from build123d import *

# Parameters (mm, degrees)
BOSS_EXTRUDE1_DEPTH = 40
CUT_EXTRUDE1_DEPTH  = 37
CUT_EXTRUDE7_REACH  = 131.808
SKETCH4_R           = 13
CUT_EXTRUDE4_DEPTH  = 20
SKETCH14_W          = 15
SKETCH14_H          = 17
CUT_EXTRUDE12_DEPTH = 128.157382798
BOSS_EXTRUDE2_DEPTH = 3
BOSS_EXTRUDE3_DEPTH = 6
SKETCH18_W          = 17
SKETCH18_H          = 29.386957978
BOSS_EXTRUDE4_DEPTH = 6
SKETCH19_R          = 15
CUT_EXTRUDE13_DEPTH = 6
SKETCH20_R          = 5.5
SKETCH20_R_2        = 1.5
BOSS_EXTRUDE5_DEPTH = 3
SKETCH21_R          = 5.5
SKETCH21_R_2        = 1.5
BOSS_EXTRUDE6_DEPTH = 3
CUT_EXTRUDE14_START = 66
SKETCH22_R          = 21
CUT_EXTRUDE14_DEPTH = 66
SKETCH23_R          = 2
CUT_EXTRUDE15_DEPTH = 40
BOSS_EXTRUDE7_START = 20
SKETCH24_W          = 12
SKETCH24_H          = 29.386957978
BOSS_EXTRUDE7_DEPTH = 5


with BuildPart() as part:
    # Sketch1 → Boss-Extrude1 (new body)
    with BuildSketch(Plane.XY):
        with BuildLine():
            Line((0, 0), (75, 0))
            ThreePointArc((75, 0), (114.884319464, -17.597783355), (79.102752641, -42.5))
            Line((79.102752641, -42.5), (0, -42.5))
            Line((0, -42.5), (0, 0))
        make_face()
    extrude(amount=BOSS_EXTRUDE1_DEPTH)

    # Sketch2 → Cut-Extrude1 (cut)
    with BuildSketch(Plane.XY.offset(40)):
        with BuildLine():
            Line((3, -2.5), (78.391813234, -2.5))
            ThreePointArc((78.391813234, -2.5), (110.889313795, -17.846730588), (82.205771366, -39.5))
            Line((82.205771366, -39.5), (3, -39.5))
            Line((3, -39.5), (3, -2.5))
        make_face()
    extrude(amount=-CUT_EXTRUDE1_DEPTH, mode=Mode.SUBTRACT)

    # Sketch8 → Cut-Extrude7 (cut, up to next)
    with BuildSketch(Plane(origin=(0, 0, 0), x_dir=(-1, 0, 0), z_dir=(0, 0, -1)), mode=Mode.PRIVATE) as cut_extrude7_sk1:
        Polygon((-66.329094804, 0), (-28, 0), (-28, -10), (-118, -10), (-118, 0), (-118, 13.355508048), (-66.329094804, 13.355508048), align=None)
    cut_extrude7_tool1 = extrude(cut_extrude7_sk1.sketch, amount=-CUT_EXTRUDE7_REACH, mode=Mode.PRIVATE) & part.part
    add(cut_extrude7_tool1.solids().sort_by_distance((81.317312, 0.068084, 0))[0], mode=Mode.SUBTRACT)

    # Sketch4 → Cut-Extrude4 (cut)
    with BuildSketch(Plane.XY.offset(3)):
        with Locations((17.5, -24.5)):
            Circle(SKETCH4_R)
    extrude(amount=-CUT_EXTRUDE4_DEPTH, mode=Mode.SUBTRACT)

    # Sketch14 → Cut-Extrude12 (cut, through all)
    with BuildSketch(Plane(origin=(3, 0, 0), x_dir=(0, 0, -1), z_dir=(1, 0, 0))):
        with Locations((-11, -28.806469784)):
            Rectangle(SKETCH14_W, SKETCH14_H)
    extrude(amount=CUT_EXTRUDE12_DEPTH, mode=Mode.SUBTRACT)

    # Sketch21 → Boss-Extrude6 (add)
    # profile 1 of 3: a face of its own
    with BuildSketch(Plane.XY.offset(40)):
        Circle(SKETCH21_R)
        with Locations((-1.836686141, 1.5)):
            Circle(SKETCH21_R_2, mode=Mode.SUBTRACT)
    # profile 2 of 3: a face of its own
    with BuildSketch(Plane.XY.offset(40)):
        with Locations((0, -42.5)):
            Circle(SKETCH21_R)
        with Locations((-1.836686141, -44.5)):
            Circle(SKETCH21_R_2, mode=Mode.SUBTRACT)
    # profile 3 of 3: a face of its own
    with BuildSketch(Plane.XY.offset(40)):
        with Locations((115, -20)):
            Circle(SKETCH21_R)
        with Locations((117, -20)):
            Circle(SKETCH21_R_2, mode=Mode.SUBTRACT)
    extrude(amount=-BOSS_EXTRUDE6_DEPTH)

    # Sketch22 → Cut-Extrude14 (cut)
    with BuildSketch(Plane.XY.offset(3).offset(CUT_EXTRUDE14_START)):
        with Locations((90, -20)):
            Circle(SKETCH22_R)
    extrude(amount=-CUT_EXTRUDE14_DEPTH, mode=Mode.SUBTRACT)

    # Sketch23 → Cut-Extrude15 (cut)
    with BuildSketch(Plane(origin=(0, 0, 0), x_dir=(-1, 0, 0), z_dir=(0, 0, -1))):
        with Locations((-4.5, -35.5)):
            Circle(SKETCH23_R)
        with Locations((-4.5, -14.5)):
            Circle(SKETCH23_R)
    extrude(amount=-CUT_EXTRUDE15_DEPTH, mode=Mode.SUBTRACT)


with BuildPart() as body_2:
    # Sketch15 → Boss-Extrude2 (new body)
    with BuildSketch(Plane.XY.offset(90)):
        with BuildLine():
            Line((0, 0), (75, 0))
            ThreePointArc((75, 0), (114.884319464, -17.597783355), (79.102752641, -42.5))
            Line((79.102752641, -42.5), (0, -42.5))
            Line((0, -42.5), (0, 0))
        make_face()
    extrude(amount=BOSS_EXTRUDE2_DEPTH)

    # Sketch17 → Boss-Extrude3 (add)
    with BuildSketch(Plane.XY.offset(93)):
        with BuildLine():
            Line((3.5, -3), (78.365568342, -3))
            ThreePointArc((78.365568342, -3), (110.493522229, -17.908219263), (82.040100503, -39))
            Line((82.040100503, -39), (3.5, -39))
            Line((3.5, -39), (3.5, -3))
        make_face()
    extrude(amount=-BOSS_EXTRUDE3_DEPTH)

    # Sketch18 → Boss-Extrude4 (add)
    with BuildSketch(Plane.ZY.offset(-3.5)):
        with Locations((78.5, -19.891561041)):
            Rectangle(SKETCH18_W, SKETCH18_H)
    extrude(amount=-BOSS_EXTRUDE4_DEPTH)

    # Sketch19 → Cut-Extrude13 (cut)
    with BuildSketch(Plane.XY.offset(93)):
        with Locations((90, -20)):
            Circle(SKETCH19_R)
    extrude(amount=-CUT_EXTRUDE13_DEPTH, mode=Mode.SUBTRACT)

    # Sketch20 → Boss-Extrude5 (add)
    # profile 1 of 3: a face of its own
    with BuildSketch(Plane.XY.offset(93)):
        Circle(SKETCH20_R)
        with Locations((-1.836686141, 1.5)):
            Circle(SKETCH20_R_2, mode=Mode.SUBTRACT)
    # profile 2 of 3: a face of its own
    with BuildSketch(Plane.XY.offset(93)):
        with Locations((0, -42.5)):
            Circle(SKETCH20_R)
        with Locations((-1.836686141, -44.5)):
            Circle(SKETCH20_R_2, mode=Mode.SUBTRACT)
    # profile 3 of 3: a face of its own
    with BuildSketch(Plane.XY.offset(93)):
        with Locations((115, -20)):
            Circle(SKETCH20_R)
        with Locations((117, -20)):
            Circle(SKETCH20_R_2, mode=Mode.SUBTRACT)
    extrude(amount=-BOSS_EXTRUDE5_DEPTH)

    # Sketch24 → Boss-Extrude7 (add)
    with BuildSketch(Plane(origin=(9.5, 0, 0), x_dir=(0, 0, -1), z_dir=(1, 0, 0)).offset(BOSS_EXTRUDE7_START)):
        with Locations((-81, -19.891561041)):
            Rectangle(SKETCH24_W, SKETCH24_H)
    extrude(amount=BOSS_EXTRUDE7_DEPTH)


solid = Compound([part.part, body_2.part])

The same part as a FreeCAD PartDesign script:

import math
import FreeCAD as App
import Part
import Sketcher


def add_polygon(sketch, points):
    """Adds a closed chain of lines whose ends are joined by coincident constraints."""
    first, n = sketch.GeometryCount, len(points)
    for a, b in zip(points, points[1:] + points[:1]):
        sketch.addGeometry(Part.LineSegment(App.Vector(*a, 0), App.Vector(*b, 0)), False)
    for i in range(n):
        sketch.addConstraint(Sketcher.Constraint("Coincident", first + i, 2, first + (i + 1) % n, 1))

doc = App.newDocument("Part")
body = doc.addObject("PartDesign::Body", "Body")

# Sketch on XY plane
sketch1 = doc.addObject("Sketcher::SketchObject", "Sketch")
body.addObject(sketch1)
sketch1.AttachmentSupport = (doc.XY_Plane, [""])
sketch1.MapMode = "FlatFace"
sketch1.addGeometry([
    Part.LineSegment(App.Vector(75, 0, 0), App.Vector(0, 0, 0)),
    Part.LineSegment(App.Vector(0, 0, 0), App.Vector(0, -42, 0)),
    Part.LineSegment(App.Vector(0, -42, 0), App.Vector(79, -42, 0)),
    Part.ArcOfCircle(Part.Circle(App.Vector(90, -20, 0), App.Vector(0, 0, 1), 25), math.radians(-116), math.radians(127)),
], False)
sketch1.addConstraint([
    Sketcher.Constraint("Coincident", 0, 2, 1, 1),
    Sketcher.Constraint("Coincident", 1, 2, 2, 1),
    Sketcher.Constraint("Coincident", 2, 2, 3, 1),
    Sketcher.Constraint("Coincident", 3, 2, 0, 1),
    Sketcher.Constraint("Horizontal", 0),
    Sketcher.Constraint("Vertical", 1),
    Sketcher.Constraint("Horizontal", 2),
    Sketcher.Constraint("Coincident", 0, 2, -1, 1),
    Sketcher.Constraint("Radius", 3, 25.0),
    Sketcher.Constraint("DistanceX", 0, 2, 0, 1, 75.0),
    Sketcher.Constraint("DistanceY", 1, 2, 1, 1, 42.5),
    Sketcher.Constraint("DistanceX", -1, 1, 3, 3, 90.0),
])
pad1 = doc.addObject("PartDesign::Pad", "Pad")
body.addObject(pad1)
pad1.Profile = sketch1
pad1.Length = 40

# Sketch on XY plane
sketch2 = doc.addObject("Sketcher::SketchObject", "Sketch001")
body.addObject(sketch2)
sketch2.AttachmentSupport = (doc.XY_Plane, [""])
sketch2.MapMode = "FlatFace"
sketch2.AttachmentOffset = App.Placement(App.Vector(0, 0, 40), App.Rotation())
sketch2.addGeometry([
    Part.LineSegment(App.Vector(78, -2, 0), App.Vector(3, -2, 0)),
    Part.LineSegment(App.Vector(3, -2, 0), App.Vector(3, -40, 0)),
    Part.LineSegment(App.Vector(3, -40, 0), App.Vector(82, -40, 0)),
    Part.ArcOfCircle(Part.Circle(App.Vector(90, -20, 0), App.Vector(0, 0, 1), 21), math.radians(-112), math.radians(124)),
], False)
sketch2.addConstraint([
    Sketcher.Constraint("Coincident", 0, 2, 1, 1),
    Sketcher.Constraint("Coincident", 1, 2, 2, 1),
    Sketcher.Constraint("Coincident", 2, 2, 3, 1),
    Sketcher.Constraint("Coincident", 3, 2, 0, 1),
    Sketcher.Constraint("Horizontal", 0),
    Sketcher.Constraint("Vertical", 1),
    Sketcher.Constraint("Horizontal", 2),
    Sketcher.Constraint("Radius", 3, 21.0),
    Sketcher.Constraint("DistanceY", 1, 2, 1, 1, 37.0),
    Sketcher.Constraint("DistanceX", -1, 1, 3, 3, 90.0),
    Sketcher.Constraint("DistanceY", 3, 3, -1, 1, 20.0),
    Sketcher.Constraint("DistanceX", -1, 1, 0, 2, 3.0),
    Sketcher.Constraint("DistanceY", 0, 2, -1, 1, 2.5),
])
pocket1 = doc.addObject("PartDesign::Pocket", "Pocket")
body.addObject(pocket1)
pocket1.Profile = sketch2
pocket1.Length = 37

# Sketch on XY plane
sketch3 = doc.addObject("Sketcher::SketchObject", "Sketch002")
body.addObject(sketch3)
sketch3.AttachmentSupport = (doc.XY_Plane, [""])
sketch3.MapMode = "FlatFace"
add_polygon(sketch3, [(28, 0), (66, 0), (66, 13), (118, 13), (118, -10), (28, -10)])  # lines 0-5
sketch3.addConstraint([
    Sketcher.Constraint("Horizontal", 0),
    Sketcher.Constraint("Vertical", 1),
    Sketcher.Constraint("Horizontal", 2),
    Sketcher.Constraint("Vertical", 3),
    Sketcher.Constraint("Horizontal", 4),
    Sketcher.Constraint("Vertical", 5),
    Sketcher.Constraint("PointOnObject", 0, 2, -1),
    Sketcher.Constraint("DistanceX", 4, 2, 4, 1, 90.0),
    Sketcher.Constraint("DistanceY", 5, 1, 5, 2, 10.0),
    Sketcher.Constraint("DistanceX", -1, 1, 2, 2, 118.0),
    Sketcher.Constraint("DistanceY", 1, 1, 1, 2, 13.355508),
    Sketcher.Constraint("DistanceX", 0, 1, 0, 2, 38.329095),
])
pocket2 = doc.addObject("PartDesign::Pocket", "Pocket001")
body.addObject(pocket2)
pocket2.Profile = sketch3
pocket2.Type = "UpToFirst"
pocket2.Reversed = True

# Sketch on XY plane
sketch4 = doc.addObject("Sketcher::SketchObject", "Sketch003")
body.addObject(sketch4)
sketch4.AttachmentSupport = (doc.XY_Plane, [""])
sketch4.MapMode = "FlatFace"
sketch4.AttachmentOffset = App.Placement(App.Vector(0, 0, 3), App.Rotation())
sketch4.addGeometry(Part.Circle(App.Vector(18, -24, 0), App.Vector(0, 0, 1), 13), False)
sketch4.addConstraint([
    Sketcher.Constraint("Diameter", 0, 26.0),
    Sketcher.Constraint("DistanceX", -1, 1, 0, 3, 17.5),
    Sketcher.Constraint("DistanceY", 0, 3, -1, 1, 24.5),
])
pocket3 = doc.addObject("PartDesign::Pocket", "Pocket002")
body.addObject(pocket3)
pocket3.Profile = sketch4
pocket3.Length = 20

# Sketch on YZ plane
sketch5 = doc.addObject("Sketcher::SketchObject", "Sketch004")
body.addObject(sketch5)
sketch5.AttachmentSupport = (doc.YZ_Plane, [""])
sketch5.MapMode = "FlatFace"
sketch5.AttachmentOffset = App.Placement(App.Vector(0, 0, 3), App.Rotation())
add_polygon(sketch5, [(-20, 18), (-37, 18), (-37, 4), (-20, 4)])  # lines 0-3
sketch5.addConstraint([
    Sketcher.Constraint("Horizontal", 0),
    Sketcher.Constraint("Vertical", 1),
    Sketcher.Constraint("Horizontal", 2),
    Sketcher.Constraint("Vertical", 3),
    Sketcher.Constraint("DistanceX", 0, 2, 0, 1, 17.0),
    Sketcher.Constraint("DistanceY", 1, 2, 1, 1, 15.0),
    Sketcher.Constraint("DistanceY", -1, 1, 0, 2, 18.5),
    Sketcher.Constraint("DistanceX", 0, 2, -1, 1, 37.30647),
])
pocket4 = doc.addObject("PartDesign::Pocket", "Pocket003")
body.addObject(pocket4)
pocket4.Profile = sketch5
pocket4.Type = "ThroughAll"
pocket4.Reversed = True

# Sketch on XY plane
sketch6 = doc.addObject("Sketcher::SketchObject", "Sketch005")
body.addObject(sketch6)
sketch6.AttachmentSupport = (doc.XY_Plane, [""])
sketch6.MapMode = "FlatFace"
sketch6.AttachmentOffset = App.Placement(App.Vector(0, 0, 40), App.Rotation())
sketch6.addGeometry([
    Part.Circle(App.Vector(0, 0, 0), App.Vector(0, 0, 1), 5.5),  # 0
    Part.Circle(App.Vector(-1.8, 1.5, 0), App.Vector(0, 0, 1), 1.5),  # 1
    Part.Circle(App.Vector(0, -42.5, 0), App.Vector(0, 0, 1), 5.5),  # 2
    Part.Circle(App.Vector(-1.8, -44.5, 0), App.Vector(0, 0, 1), 1.5),  # 3
    Part.Circle(App.Vector(115, -20, 0), App.Vector(0, 0, 1), 5.5),  # 4
    Part.Circle(App.Vector(117, -20, 0), App.Vector(0, 0, 1), 1.5),  # 5
], False)
sketch6.addConstraint([
    Sketcher.Constraint("Coincident", 0, 3, -1, 1),
    Sketcher.Constraint("Equal", 0, 2),
    Sketcher.Constraint("Equal", 1, 3),
    Sketcher.Constraint("Equal", 2, 4),
    Sketcher.Constraint("Equal", 3, 5),
    Sketcher.Constraint("PointOnObject", 2, 3, -2),
    Sketcher.Constraint("Horizontal", 4, 3, 5, 3),
    Sketcher.Constraint("Vertical", 1, 3, 3, 3),
    Sketcher.Constraint("Diameter", 0, 11.0),
    Sketcher.Constraint("Diameter", 1, 3.0),
    Sketcher.Constraint("DistanceX", -1, 1, 4, 3, 115.0),
    Sketcher.Constraint("DistanceY", 4, 3, -1, 1, 20.0),
    Sketcher.Constraint("DistanceX", -1, 1, 5, 3, 117.0),
    Sketcher.Constraint("DistanceY", 2, 3, 1, 3, 44.0),
    Sketcher.Constraint("DistanceY", 3, 3, 2, 3, 2.0),
    Sketcher.Constraint("DistanceY", -1, 1, 1, 3, 1.5),
    Sketcher.Constraint("DistanceX", 1, 3, -1, 1, 1.836686),
])
pad2 = doc.addObject("PartDesign::Pad", "Pad001")
body.addObject(pad2)
pad2.Profile = sketch6
pad2.Length = 3
pad2.Reversed = True

# Sketch on XY plane
sketch7 = doc.addObject("Sketcher::SketchObject", "Sketch006")
body.addObject(sketch7)
sketch7.AttachmentSupport = (doc.XY_Plane, [""])
sketch7.MapMode = "FlatFace"
sketch7.AttachmentOffset = App.Placement(App.Vector(0, 0, 69), App.Rotation())
sketch7.addGeometry(Part.Circle(App.Vector(90, -20, 0), App.Vector(0, 0, 1), 21), False)
sketch7.addConstraint([
    Sketcher.Constraint("Diameter", 0, 42.0),
    Sketcher.Constraint("DistanceX", -1, 1, 0, 3, 90.0),
    Sketcher.Constraint("DistanceY", 0, 3, -1, 1, 20.0),
])
pocket5 = doc.addObject("PartDesign::Pocket", "Pocket004")
body.addObject(pocket5)
pocket5.Profile = sketch7
pocket5.Length = 66

# Sketch on XY plane
sketch8 = doc.addObject("Sketcher::SketchObject", "Sketch007")
body.addObject(sketch8)
sketch8.AttachmentSupport = (doc.XY_Plane, [""])
sketch8.MapMode = "FlatFace"
sketch8.addGeometry([
    Part.Circle(App.Vector(4.5, -35.5, 0), App.Vector(0, 0, 1), 2),
    Part.Circle(App.Vector(4.5, -14.5, 0), App.Vector(0, 0, 1), 2),
], False)
sketch8.addConstraint([
    Sketcher.Constraint("Equal", 0, 1),
    Sketcher.Constraint("Vertical", 0, 3, 1, 3),
    Sketcher.Constraint("Diameter", 0, 4.0),
    Sketcher.Constraint("DistanceY", 0, 3, 1, 3, 21.0),
    Sketcher.Constraint("DistanceX", -1, 1, 0, 3, 4.5),
    Sketcher.Constraint("DistanceY", 0, 3, -1, 1, 35.5),
])
pocket6 = doc.addObject("PartDesign::Pocket", "Pocket005")
body.addObject(pocket6)
pocket6.Profile = sketch8
pocket6.Length = 40
pocket6.Reversed = True
body2 = doc.addObject("PartDesign::Body", "Body001")

# Sketch on XY plane
sketch9 = doc.addObject("Sketcher::SketchObject", "Sketch008")
body2.addObject(sketch9)
sketch9.AttachmentSupport = (doc.getObject("XY_Plane001"), [""])
sketch9.MapMode = "FlatFace"
sketch9.AttachmentOffset = App.Placement(App.Vector(0, 0, 90), App.Rotation())
sketch9.addGeometry([
    Part.LineSegment(App.Vector(75, 0, 0), App.Vector(0, 0, 0)),
    Part.LineSegment(App.Vector(0, 0, 0), App.Vector(0, -42, 0)),
    Part.LineSegment(App.Vector(0, -42, 0), App.Vector(79, -42, 0)),
    Part.ArcOfCircle(Part.Circle(App.Vector(90, -20, 0), App.Vector(0, 0, 1), 25), math.radians(-116), math.radians(127)),
], False)
sketch9.addConstraint([
    Sketcher.Constraint("Coincident", 0, 2, 1, 1),
    Sketcher.Constraint("Coincident", 1, 2, 2, 1),
    Sketcher.Constraint("Coincident", 2, 2, 3, 1),
    Sketcher.Constraint("Coincident", 3, 2, 0, 1),
    Sketcher.Constraint("Horizontal", 0),
    Sketcher.Constraint("Vertical", 1),
    Sketcher.Constraint("Horizontal", 2),
    Sketcher.Constraint("Coincident", 0, 2, -1, 1),
    Sketcher.Constraint("Radius", 3, 25.0),
    Sketcher.Constraint("DistanceX", 0, 2, 0, 1, 75.0),
    Sketcher.Constraint("DistanceY", 1, 2, 1, 1, 42.5),
    Sketcher.Constraint("DistanceX", -1, 1, 3, 3, 90.0),
])
pad3 = doc.addObject("PartDesign::Pad", "Pad002")
body2.addObject(pad3)
pad3.Profile = sketch9
pad3.Length = 3

# Sketch on XY plane
sketch10 = doc.addObject("Sketcher::SketchObject", "Sketch009")
body2.addObject(sketch10)
sketch10.AttachmentSupport = (doc.getObject("XY_Plane001"), [""])
sketch10.MapMode = "FlatFace"
sketch10.AttachmentOffset = App.Placement(App.Vector(0, 0, 93), App.Rotation())
sketch10.addGeometry([
    Part.LineSegment(App.Vector(78, -3, 0), App.Vector(4, -3, 0)),
    Part.LineSegment(App.Vector(4, -3, 0), App.Vector(4, -39, 0)),
    Part.LineSegment(App.Vector(4, -39, 0), App.Vector(82, -39, 0)),
    Part.ArcOfCircle(Part.Circle(App.Vector(90, -20, 0), App.Vector(0, 0, 1), 21), math.radians(-113), math.radians(124)),
], False)
sketch10.addConstraint([
    Sketcher.Constraint("Coincident", 0, 2, 1, 1),
    Sketcher.Constraint("Coincident", 1, 2, 2, 1),
    Sketcher.Constraint("Coincident", 2, 2, 3, 1),
    Sketcher.Constraint("Coincident", 3, 2, 0, 1),
    Sketcher.Constraint("Horizontal", 0),
    Sketcher.Constraint("Vertical", 1),
    Sketcher.Constraint("Horizontal", 2),
    Sketcher.Constraint("Radius", 3, 20.6),
    Sketcher.Constraint("DistanceY", 1, 2, 1, 1, 36.0),
    Sketcher.Constraint("DistanceX", -1, 1, 3, 3, 90.0),
    Sketcher.Constraint("DistanceY", 3, 3, -1, 1, 20.0),
    Sketcher.Constraint("DistanceY", 0, 2, -1, 1, 3.0),
    Sketcher.Constraint("DistanceX", -1, 1, 0, 2, 3.5),
])
pad4 = doc.addObject("PartDesign::Pad", "Pad003")
body2.addObject(pad4)
pad4.Profile = sketch10
pad4.Length = 6
pad4.Reversed = True

# Sketch on YZ plane
sketch11 = doc.addObject("Sketcher::SketchObject", "Sketch010")
body2.addObject(sketch11)
sketch11.AttachmentSupport = (doc.getObject("YZ_Plane001"), [""])
sketch11.MapMode = "FlatFace"
sketch11.AttachmentOffset = App.Placement(App.Vector(0, 0, 3.5), App.Rotation())
add_polygon(sketch11, [(-5, 70), (-35, 70), (-35, 87), (-5, 87)])  # lines 0-3
sketch11.addConstraint([
    Sketcher.Constraint("Horizontal", 0),
    Sketcher.Constraint("Vertical", 1),
    Sketcher.Constraint("Horizontal", 2),
    Sketcher.Constraint("Vertical", 3),
    Sketcher.Constraint("DistanceY", 1, 1, 1, 2, 17.0),
    Sketcher.Constraint("DistanceY", -1, 1, 0, 2, 70.0),
    Sketcher.Constraint("DistanceX", 0, 2, 0, 1, 29.386958),
    Sketcher.Constraint("DistanceX", 0, 2, -1, 1, 34.58504),
])
pad5 = doc.addObject("PartDesign::Pad", "Pad004")
body2.addObject(pad5)
pad5.Profile = sketch11
pad5.Length = 6

# Sketch on XY plane
sketch12 = doc.addObject("Sketcher::SketchObject", "Sketch011")
body2.addObject(sketch12)
sketch12.AttachmentSupport = (doc.getObject("XY_Plane001"), [""])
sketch12.MapMode = "FlatFace"
sketch12.AttachmentOffset = App.Placement(App.Vector(0, 0, 93), App.Rotation())
sketch12.addGeometry(Part.Circle(App.Vector(90, -20, 0), App.Vector(0, 0, 1), 15), False)
sketch12.addConstraint([
    Sketcher.Constraint("Diameter", 0, 30.0),
    Sketcher.Constraint("DistanceX", -1, 1, 0, 3, 90.0),
    Sketcher.Constraint("DistanceY", 0, 3, -1, 1, 20.0),
])
pocket7 = doc.addObject("PartDesign::Pocket", "Pocket006")
body2.addObject(pocket7)
pocket7.Profile = sketch12
pocket7.Length = 6

# Sketch on XY plane
sketch13 = doc.addObject("Sketcher::SketchObject", "Sketch012")
body2.addObject(sketch13)
sketch13.AttachmentSupport = (doc.getObject("XY_Plane001"), [""])
sketch13.MapMode = "FlatFace"
sketch13.AttachmentOffset = App.Placement(App.Vector(0, 0, 93), App.Rotation())
sketch13.addGeometry([
    Part.Circle(App.Vector(0, 0, 0), App.Vector(0, 0, 1), 5.5),  # 0
    Part.Circle(App.Vector(-1.8, 1.5, 0), App.Vector(0, 0, 1), 1.5),  # 1
    Part.Circle(App.Vector(0, -42.5, 0), App.Vector(0, 0, 1), 5.5),  # 2
    Part.Circle(App.Vector(-1.8, -44.5, 0), App.Vector(0, 0, 1), 1.5),  # 3
    Part.Circle(App.Vector(115, -20, 0), App.Vector(0, 0, 1), 5.5),  # 4
    Part.Circle(App.Vector(117, -20, 0), App.Vector(0, 0, 1), 1.5),  # 5
], False)
sketch13.addConstraint([
    Sketcher.Constraint("Coincident", 0, 3, -1, 1),
    Sketcher.Constraint("Equal", 0, 2),
    Sketcher.Constraint("Equal", 1, 3),
    Sketcher.Constraint("Equal", 2, 4),
    Sketcher.Constraint("Equal", 3, 5),
    Sketcher.Constraint("PointOnObject", 2, 3, -2),
    Sketcher.Constraint("Horizontal", 4, 3, 5, 3),
    Sketcher.Constraint("Vertical", 1, 3, 3, 3),
    Sketcher.Constraint("Diameter", 0, 11.0),
    Sketcher.Constraint("Diameter", 1, 3.0),
    Sketcher.Constraint("DistanceX", -1, 1, 4, 3, 115.0),
    Sketcher.Constraint("DistanceY", 4, 3, -1, 1, 20.0),
    Sketcher.Constraint("DistanceX", -1, 1, 5, 3, 117.0),
    Sketcher.Constraint("DistanceY", 2, 3, 1, 3, 44.0),
    Sketcher.Constraint("DistanceY", 3, 3, 2, 3, 2.0),
    Sketcher.Constraint("DistanceY", -1, 1, 1, 3, 1.5),
    Sketcher.Constraint("DistanceX", 1, 3, -1, 1, 1.836686),
])
pad6 = doc.addObject("PartDesign::Pad", "Pad005")
body2.addObject(pad6)
pad6.Profile = sketch13
pad6.Length = 3
pad6.Reversed = True

# Sketch on YZ plane
sketch14 = doc.addObject("Sketcher::SketchObject", "Sketch013")
body2.addObject(sketch14)
sketch14.AttachmentSupport = (doc.getObject("YZ_Plane001"), [""])
sketch14.MapMode = "FlatFace"
sketch14.AttachmentOffset = App.Placement(App.Vector(0, 0, 29.5), App.Rotation())
add_polygon(sketch14, [(-5, 87), (-35, 87), (-35, 75), (-5, 75)])  # lines 0-3
sketch14.addConstraint([
    Sketcher.Constraint("Horizontal", 0),
    Sketcher.Constraint("Vertical", 1),
    Sketcher.Constraint("Horizontal", 2),
    Sketcher.Constraint("Vertical", 3),
    Sketcher.Constraint("DistanceY", 1, 2, 1, 1, 12.0),
    Sketcher.Constraint("DistanceY", -1, 1, 0, 2, 87.0),
    Sketcher.Constraint("DistanceX", 0, 2, 0, 1, 29.386958),
    Sketcher.Constraint("DistanceX", 0, 2, -1, 1, 34.58504),
])
pad7 = doc.addObject("PartDesign::Pad", "Pad006")
body2.addObject(pad7)
pad7.Profile = sketch14
pad7.Length = 5

doc.recompute()
